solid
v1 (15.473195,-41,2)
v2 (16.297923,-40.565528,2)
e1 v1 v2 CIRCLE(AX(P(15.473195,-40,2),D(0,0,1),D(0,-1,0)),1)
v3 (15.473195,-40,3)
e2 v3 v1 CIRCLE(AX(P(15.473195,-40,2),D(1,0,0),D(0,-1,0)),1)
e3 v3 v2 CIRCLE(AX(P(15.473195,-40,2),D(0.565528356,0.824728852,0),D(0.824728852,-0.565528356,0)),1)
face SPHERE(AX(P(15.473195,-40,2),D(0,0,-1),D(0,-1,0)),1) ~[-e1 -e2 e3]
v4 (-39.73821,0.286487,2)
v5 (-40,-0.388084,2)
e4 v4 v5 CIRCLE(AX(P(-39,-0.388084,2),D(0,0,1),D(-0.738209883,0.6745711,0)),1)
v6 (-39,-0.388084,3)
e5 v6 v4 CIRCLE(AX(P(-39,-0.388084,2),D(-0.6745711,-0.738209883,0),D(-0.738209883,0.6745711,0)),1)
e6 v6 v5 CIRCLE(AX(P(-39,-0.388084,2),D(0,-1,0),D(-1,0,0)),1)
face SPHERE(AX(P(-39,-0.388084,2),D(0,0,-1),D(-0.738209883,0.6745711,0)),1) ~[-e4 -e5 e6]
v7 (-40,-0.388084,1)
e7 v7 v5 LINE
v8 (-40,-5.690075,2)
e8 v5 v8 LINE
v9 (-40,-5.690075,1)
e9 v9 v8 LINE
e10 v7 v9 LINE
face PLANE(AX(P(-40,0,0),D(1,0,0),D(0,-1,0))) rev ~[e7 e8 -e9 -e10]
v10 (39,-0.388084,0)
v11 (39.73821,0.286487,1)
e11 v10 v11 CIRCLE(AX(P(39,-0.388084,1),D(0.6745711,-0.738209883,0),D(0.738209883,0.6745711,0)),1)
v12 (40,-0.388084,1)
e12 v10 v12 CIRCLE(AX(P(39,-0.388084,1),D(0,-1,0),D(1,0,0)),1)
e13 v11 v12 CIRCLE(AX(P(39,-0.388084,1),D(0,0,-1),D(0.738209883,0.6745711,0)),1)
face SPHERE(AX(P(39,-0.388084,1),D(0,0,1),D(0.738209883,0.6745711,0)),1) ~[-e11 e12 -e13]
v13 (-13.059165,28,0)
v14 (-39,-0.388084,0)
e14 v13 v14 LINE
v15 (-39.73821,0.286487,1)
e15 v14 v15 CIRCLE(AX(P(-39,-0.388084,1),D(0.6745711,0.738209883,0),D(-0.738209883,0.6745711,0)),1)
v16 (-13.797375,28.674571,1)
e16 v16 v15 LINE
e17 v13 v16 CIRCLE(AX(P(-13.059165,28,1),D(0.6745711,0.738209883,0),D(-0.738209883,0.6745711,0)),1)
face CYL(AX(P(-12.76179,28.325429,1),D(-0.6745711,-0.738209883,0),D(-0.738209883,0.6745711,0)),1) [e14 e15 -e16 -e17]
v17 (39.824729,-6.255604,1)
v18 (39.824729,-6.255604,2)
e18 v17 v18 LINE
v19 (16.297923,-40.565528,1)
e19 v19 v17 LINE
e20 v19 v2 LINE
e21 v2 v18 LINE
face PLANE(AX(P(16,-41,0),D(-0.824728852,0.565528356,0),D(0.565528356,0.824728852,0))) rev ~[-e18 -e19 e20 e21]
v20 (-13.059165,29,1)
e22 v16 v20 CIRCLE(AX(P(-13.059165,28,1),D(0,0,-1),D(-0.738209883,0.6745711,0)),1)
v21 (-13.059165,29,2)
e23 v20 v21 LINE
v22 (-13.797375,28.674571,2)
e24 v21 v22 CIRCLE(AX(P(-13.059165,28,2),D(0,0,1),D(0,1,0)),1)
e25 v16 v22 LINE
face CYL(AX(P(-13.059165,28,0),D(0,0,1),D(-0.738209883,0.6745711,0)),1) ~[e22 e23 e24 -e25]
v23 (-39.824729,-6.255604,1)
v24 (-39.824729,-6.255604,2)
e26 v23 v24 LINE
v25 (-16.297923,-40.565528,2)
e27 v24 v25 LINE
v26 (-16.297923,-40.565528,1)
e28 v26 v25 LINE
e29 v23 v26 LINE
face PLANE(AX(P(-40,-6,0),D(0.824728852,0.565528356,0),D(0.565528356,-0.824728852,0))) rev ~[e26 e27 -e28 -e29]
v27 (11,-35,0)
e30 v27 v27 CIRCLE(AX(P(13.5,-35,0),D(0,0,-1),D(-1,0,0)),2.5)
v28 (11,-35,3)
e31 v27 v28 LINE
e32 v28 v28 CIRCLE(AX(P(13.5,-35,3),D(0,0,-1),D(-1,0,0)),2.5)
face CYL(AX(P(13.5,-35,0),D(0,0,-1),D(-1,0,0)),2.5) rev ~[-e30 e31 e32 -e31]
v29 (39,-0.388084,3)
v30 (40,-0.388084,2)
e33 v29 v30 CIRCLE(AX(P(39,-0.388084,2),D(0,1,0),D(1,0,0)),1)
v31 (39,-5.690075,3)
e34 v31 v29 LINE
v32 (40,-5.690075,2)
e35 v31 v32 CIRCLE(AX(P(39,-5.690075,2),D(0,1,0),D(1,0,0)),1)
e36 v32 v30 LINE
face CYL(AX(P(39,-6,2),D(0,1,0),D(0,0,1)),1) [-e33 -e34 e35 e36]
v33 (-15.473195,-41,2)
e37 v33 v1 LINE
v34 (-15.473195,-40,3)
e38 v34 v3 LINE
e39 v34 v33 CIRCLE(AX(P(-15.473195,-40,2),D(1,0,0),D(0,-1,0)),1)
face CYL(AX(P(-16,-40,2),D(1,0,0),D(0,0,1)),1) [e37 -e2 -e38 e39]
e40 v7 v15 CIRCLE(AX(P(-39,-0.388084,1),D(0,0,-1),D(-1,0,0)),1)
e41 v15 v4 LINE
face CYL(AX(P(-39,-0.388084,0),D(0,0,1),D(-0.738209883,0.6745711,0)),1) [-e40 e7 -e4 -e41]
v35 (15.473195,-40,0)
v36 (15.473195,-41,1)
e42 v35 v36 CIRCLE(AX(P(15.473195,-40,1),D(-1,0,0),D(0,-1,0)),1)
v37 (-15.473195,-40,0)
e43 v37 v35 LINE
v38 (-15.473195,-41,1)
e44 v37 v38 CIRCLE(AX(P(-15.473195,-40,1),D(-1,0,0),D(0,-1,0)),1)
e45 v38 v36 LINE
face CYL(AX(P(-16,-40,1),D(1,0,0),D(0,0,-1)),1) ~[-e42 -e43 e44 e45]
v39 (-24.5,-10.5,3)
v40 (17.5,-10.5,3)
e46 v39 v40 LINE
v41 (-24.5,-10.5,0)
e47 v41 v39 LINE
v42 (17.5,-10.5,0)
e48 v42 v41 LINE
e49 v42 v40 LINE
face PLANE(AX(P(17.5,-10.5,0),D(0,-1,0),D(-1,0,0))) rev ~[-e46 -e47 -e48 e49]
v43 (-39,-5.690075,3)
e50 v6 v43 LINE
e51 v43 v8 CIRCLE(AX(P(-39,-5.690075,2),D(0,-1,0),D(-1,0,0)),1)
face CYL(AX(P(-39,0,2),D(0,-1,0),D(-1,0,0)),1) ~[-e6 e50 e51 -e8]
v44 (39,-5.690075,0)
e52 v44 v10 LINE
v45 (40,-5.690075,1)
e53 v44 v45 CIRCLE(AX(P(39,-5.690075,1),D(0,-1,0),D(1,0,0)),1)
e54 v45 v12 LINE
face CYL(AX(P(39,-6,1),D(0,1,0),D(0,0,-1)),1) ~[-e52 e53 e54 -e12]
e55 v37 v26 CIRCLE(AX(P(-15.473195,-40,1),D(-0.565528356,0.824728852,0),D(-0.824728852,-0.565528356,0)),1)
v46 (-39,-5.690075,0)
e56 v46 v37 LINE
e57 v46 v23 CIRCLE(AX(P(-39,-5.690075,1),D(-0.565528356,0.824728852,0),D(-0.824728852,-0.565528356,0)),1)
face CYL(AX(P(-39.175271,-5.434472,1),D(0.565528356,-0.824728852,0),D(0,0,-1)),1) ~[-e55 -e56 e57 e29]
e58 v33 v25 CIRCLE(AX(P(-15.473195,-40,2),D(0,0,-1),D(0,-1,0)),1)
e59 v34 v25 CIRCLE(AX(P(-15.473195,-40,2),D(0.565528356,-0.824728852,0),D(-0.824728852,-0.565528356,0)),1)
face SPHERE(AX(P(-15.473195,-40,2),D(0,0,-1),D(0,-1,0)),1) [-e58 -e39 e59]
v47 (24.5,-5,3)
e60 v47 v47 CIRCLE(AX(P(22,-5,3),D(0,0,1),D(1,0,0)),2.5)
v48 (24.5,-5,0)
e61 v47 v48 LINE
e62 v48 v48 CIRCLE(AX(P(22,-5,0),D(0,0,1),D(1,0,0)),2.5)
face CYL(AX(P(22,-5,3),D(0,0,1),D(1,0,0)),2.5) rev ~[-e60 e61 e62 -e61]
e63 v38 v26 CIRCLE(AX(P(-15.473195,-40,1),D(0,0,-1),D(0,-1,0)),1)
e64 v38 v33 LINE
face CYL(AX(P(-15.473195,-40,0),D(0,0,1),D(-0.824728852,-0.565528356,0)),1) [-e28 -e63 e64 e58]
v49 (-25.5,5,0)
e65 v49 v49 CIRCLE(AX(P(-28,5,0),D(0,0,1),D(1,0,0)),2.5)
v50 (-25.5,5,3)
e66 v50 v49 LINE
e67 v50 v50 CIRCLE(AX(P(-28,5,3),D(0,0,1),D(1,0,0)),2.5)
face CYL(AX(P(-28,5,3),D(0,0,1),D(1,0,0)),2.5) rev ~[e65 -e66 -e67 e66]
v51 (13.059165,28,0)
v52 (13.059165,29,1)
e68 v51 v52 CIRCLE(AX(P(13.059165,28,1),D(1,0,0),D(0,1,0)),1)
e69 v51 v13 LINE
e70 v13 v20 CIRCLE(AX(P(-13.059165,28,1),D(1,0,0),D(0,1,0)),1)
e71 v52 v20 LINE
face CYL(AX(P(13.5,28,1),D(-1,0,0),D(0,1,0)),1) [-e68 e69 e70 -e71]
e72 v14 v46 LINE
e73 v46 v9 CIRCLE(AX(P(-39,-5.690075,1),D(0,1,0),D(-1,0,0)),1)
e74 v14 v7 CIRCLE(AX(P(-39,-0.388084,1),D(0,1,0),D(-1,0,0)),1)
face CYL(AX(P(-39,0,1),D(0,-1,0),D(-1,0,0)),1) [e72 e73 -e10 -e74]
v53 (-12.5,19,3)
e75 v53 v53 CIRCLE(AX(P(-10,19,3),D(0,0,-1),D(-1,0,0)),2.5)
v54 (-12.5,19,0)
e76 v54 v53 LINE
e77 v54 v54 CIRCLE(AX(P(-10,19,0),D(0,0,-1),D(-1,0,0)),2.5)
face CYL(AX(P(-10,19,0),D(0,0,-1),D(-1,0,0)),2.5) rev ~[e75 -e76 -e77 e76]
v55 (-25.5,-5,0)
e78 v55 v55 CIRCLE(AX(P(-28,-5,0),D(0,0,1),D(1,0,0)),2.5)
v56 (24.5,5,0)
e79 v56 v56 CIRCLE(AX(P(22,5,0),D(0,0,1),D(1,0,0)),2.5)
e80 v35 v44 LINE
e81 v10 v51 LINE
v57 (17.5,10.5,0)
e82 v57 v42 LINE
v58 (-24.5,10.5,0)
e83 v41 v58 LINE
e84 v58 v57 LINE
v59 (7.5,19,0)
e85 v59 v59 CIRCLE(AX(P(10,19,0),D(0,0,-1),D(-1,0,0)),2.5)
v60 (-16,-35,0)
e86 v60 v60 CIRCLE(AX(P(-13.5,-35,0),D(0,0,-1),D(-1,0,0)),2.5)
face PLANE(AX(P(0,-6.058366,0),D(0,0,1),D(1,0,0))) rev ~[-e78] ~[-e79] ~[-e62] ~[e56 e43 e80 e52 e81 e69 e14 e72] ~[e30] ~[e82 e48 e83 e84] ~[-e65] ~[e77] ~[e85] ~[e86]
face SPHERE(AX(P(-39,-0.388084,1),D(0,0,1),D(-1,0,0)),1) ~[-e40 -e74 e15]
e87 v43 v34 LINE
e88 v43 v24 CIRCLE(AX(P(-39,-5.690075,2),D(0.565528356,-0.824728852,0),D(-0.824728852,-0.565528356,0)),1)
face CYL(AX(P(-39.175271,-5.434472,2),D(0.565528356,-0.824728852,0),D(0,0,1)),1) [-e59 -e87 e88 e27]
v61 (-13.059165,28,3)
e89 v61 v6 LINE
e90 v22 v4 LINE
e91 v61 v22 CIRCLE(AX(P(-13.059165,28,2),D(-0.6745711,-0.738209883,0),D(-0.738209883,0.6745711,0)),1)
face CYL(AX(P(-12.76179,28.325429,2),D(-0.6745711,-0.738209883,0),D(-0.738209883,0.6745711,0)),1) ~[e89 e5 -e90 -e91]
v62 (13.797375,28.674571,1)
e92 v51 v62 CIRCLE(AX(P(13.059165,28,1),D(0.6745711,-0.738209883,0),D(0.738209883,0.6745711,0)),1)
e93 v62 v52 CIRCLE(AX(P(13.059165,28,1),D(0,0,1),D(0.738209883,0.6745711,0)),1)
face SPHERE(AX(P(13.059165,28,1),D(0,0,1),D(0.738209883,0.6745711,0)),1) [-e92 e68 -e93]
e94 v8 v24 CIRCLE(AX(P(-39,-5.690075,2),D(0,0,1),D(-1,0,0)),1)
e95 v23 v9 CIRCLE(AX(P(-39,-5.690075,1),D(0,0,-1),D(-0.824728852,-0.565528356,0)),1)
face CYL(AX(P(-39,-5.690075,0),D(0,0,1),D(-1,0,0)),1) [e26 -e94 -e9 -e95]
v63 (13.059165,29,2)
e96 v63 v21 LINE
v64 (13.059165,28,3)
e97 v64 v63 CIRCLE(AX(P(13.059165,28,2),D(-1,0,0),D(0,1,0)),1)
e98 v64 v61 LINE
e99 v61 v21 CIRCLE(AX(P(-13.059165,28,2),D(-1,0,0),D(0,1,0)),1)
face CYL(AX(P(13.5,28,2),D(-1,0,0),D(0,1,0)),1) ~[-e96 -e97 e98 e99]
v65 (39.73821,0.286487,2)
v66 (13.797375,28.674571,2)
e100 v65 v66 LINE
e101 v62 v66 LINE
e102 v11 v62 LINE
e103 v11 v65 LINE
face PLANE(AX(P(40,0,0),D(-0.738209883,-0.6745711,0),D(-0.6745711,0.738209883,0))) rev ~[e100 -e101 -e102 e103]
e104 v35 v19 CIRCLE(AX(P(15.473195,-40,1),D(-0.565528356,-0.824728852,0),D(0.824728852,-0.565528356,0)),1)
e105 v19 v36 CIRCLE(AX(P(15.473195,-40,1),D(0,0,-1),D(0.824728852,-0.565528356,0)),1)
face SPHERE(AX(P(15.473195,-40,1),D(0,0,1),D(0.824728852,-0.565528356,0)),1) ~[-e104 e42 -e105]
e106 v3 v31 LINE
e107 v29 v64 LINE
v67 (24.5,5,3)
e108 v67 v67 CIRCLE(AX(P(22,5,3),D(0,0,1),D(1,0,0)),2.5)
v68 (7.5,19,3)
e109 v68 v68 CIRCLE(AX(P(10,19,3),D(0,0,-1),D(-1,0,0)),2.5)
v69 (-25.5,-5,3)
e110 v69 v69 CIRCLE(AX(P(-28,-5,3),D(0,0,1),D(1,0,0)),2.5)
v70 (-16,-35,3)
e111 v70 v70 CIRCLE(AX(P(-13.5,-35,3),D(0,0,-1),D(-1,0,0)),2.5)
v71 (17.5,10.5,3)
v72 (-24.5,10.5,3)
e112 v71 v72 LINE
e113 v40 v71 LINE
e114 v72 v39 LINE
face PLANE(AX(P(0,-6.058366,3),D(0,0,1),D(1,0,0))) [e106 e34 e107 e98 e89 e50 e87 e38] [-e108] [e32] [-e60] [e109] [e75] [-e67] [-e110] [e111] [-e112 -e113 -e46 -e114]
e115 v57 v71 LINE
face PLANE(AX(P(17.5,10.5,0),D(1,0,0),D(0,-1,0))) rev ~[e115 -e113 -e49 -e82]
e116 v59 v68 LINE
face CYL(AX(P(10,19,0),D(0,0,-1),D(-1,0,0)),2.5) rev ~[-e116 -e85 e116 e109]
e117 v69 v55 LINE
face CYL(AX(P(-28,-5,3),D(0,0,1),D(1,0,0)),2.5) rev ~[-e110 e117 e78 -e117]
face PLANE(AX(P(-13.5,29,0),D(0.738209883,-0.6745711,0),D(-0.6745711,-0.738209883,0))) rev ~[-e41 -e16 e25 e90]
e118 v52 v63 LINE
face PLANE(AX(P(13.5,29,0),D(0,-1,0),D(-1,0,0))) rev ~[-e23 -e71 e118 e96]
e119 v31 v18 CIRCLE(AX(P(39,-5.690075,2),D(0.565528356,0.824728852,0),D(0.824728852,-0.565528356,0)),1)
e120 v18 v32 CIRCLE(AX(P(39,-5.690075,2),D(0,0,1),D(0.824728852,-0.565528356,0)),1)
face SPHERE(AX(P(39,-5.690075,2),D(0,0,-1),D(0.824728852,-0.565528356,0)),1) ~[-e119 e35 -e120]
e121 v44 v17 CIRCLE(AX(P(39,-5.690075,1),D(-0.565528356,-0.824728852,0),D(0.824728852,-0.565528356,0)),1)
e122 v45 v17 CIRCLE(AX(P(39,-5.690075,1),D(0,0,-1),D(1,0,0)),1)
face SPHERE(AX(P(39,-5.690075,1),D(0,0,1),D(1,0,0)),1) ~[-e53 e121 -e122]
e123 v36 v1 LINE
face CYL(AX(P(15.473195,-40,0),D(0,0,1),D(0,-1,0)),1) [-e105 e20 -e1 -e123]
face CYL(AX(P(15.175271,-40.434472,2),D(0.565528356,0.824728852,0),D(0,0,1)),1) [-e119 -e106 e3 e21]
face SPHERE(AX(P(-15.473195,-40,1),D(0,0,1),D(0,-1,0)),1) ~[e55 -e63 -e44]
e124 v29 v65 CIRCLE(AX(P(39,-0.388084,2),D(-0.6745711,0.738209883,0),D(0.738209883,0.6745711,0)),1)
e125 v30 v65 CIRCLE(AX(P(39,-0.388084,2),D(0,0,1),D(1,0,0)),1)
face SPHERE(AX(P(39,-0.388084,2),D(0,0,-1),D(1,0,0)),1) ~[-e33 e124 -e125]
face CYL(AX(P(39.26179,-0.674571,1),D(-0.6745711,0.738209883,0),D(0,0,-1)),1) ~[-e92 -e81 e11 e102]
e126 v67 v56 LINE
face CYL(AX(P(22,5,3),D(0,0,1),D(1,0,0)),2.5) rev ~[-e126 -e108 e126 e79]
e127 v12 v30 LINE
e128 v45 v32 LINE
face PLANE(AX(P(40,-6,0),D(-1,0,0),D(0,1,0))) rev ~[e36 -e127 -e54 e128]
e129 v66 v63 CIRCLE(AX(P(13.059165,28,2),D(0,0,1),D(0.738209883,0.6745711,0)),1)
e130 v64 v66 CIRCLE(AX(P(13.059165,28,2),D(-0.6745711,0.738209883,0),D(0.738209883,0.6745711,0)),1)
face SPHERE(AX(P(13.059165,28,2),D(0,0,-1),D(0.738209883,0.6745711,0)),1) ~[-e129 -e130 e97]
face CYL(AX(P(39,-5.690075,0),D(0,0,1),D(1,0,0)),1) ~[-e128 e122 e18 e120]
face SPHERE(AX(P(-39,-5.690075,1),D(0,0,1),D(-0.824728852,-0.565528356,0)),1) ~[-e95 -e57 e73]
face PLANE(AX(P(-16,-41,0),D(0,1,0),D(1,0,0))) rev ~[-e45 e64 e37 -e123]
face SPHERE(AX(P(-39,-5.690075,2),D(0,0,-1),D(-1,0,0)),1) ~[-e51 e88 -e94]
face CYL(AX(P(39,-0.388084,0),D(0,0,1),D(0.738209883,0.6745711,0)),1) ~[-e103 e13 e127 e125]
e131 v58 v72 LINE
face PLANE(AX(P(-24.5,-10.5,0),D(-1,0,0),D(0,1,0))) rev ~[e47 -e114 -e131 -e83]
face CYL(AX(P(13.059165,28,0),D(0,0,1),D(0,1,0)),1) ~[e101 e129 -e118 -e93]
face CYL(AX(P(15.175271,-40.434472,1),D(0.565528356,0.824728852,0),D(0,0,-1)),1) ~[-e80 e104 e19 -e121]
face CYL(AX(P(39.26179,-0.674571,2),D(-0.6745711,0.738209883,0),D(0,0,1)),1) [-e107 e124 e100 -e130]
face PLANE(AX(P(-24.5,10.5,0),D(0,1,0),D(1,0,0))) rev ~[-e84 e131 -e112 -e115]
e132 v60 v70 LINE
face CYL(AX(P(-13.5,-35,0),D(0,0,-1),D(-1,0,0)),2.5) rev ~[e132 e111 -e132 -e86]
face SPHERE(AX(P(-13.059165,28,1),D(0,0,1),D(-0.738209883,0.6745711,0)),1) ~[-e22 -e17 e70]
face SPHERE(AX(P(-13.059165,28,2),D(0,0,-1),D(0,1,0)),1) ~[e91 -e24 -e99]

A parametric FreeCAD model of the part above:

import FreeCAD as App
import Part
import Sketcher
Q = App.Units.Quantity


def edges_at(feature, points):
    """Names of the edges that pass closest to the given points."""
    edges = feature.Shape.Edges
    near = lambda p: min(range(len(edges)), key=lambda i: edges[i].distToShape(Part.Vertex(*p))[0])
    return sorted({f"Edge{near(p) + 1}" for p in points})

doc = App.newDocument("Part")
body = doc.addObject("PartDesign::Body", "Body")

# Sketch on XY plane
sketch1 = doc.addObject("Sketcher::SketchObject", "Sketch")
body.addObject(sketch1)
sketch1.AttachmentSupport = (doc.XY_Plane, [""])
sketch1.MapMode = "FlatFace"
sketch1.addGeometry([
    Part.LineSegment(App.Vector(-14, 29, 0), App.Vector(-40, 0, 0)),  # 0
    Part.LineSegment(App.Vector(-40, 0, 0), App.Vector(-40, -6, 0)),  # 1
    Part.LineSegment(App.Vector(-40, -6, 0), App.Vector(-16, -41, 0)),  # 2
    Part.LineSegment(App.Vector(-16, -41, 0), App.Vector(16, -41, 0)),  # 3
    Part.LineSegment(App.Vector(16, -41, 0), App.Vector(40, -6, 0)),  # 4
    Part.LineSegment(App.Vector(40, -6, 0), App.Vector(40, 0, 0)),  # 5
    Part.LineSegment(App.Vector(40, 0, 0), App.Vector(14, 29, 0)),  # 6
    Part.LineSegment(App.Vector(14, 29, 0), App.Vector(-14, 29, 0)),  # 7
], False)
sketch1.addConstraint([
    Sketcher.Constraint("Coincident", 0, 2, 1, 1),
    Sketcher.Constraint("Coincident", 1, 2, 2, 1),
    Sketcher.Constraint("Coincident", 2, 2, 3, 1),
    Sketcher.Constraint("Coincident", 3, 2, 4, 1),
    Sketcher.Constraint("Coincident", 4, 2, 5, 1),
    Sketcher.Constraint("Coincident", 5, 2, 6, 1),
    Sketcher.Constraint("Coincident", 6, 2, 7, 1),
    Sketcher.Constraint("Coincident", 7, 2, 0, 1),
    Sketcher.Constraint("Vertical", 1),
    Sketcher.Constraint("Horizontal", 3),
    Sketcher.Constraint("Vertical", 5),
    Sketcher.Constraint("Horizontal", 7),
    Sketcher.Constraint("Symmetric", 0, 2, 5, 2, -1, 1),
    Sketcher.Constraint("PointOnObject", 0, 2, -1),
    Sketcher.Constraint("Horizontal", 1, 2, 4, 2),
    Sketcher.Constraint("Equal", 2, 4),
    Sketcher.Constraint("Equal", 0, 6),
    Sketcher.Constraint("DistanceX", 3, 1, 3, 2, Q("32 mm")),
    Sketcher.Constraint("DistanceX", 7, 2, 7, 1, Q("27 mm")),
    Sketcher.Constraint("DistanceY", 1, 2, 1, 1, Q("6 mm")),
    Sketcher.Constraint("DistanceX", 0, 2, -1, 1, Q("40 mm")),
    Sketcher.Constraint("DistanceY", 2, 2, -1, 1, Q("41 mm")),
    Sketcher.Constraint("DistanceY", -1, 1, 6, 2, Q("29 mm")),
])
pad1 = doc.addObject("PartDesign::Pad", "Pad")
body.addObject(pad1)
pad1.Profile = sketch1
pad1.Length = 3

# Sketch on XY plane
sketch2 = doc.addObject("Sketcher::SketchObject", "Sketch001")
body.addObject(sketch2)
sketch2.AttachmentSupport = (doc.XY_Plane, [""])
sketch2.MapMode = "FlatFace"
sketch2.addGeometry([
    Part.Circle(App.Vector(10, 19, 0), App.Vector(0, 0, 1), 2.5),
    Part.Circle(App.Vector(-10, 19, 0), App.Vector(0, 0, 1), 2.5),
    Part.Circle(App.Vector(13.5, -35, 0), App.Vector(0, 0, 1), 2.5),
    Part.Circle(App.Vector(-13.5, -35, 0), App.Vector(0, 0, 1), 2.5),
], False)
sketch2.addConstraint([
    Sketcher.Constraint("Equal", 0, 1),
    Sketcher.Constraint("Equal", 1, 2),
    Sketcher.Constraint("Equal", 2, 3),
    Sketcher.Constraint("Symmetric", 0, 3, 1, 3, -2),
    Sketcher.Constraint("Symmetric", 2, 3, 3, 3, -2),
    Sketcher.Constraint("Diameter", 0, Q("5 mm")),
    Sketcher.Constraint("DistanceX", -1, 1, 0, 3, Q("10 mm")),
    Sketcher.Constraint("DistanceY", -1, 1, 0, 3, Q("19 mm")),
    Sketcher.Constraint("DistanceY", 2, 3, -1, 1, Q("35 mm")),
    Sketcher.Constraint("DistanceX", 3, 3, 2, 3, Q("27 mm")),
])
pocket1 = doc.addObject("PartDesign::Pocket", "Pocket")
body.addObject(pocket1)
pocket1.Profile = sketch2
pocket1.Length = 10
pocket1.Reversed = True

# Sketch on XY plane
sketch3 = doc.addObject("Sketcher::SketchObject", "Sketch002")
body.addObject(sketch3)
sketch3.AttachmentSupport = (doc.XY_Plane, [""])
sketch3.MapMode = "FlatFace"
sketch3.addGeometry([
    Part.LineSegment(App.Vector(-24, 10, 0), App.Vector(18, 10, 0)),
    Part.LineSegment(App.Vector(18, 10, 0), App.Vector(18, -10, 0)),
    Part.LineSegment(App.Vector(18, -10, 0), App.Vector(-24, -10, 0)),
    Part.LineSegment(App.Vector(-24, -10, 0), App.Vector(-24, 10, 0)),
], False)
sketch3.addConstraint([
    Sketcher.Constraint("Coincident", 0, 2, 1, 1),
    Sketcher.Constraint("Coincident", 1, 2, 2, 1),
    Sketcher.Constraint("Coincident", 2, 2, 3, 1),
    Sketcher.Constraint("Coincident", 3, 2, 0, 1),
    Sketcher.Constraint("Horizontal", 0),
    Sketcher.Constraint("Vertical", 1),
    Sketcher.Constraint("Horizontal", 2),
    Sketcher.Constraint("Vertical", 3),
    Sketcher.Constraint("DistanceX", 0, 1, 0, 2, Q("42 mm")),
    Sketcher.Constraint("DistanceY", 1, 2, 1, 1, Q("21 mm")),
    Sketcher.Constraint("DistanceX", -1, 1, 0, 2, Q("17.5 mm")),
    Sketcher.Constraint("DistanceY", -1, 1, 0, 2, Q("10.5 mm")),
])
pocket2 = doc.addObject("PartDesign::Pocket", "Pocket001")
body.addObject(pocket2)
pocket2.Profile = sketch3
pocket2.Length = 10
pocket2.Reversed = True

# Sketch on XY plane
sketch4 = doc.addObject("Sketcher::SketchObject", "Sketch003")
body.addObject(sketch4)
sketch4.AttachmentSupport = (doc.XY_Plane, [""])
sketch4.MapMode = "FlatFace"
sketch4.AttachmentOffset = App.Placement(App.Vector(0, 0, 3), App.Rotation())
sketch4.addGeometry([
    Part.Circle(App.Vector(-28, -5, 0), App.Vector(0, 0, 1), 2.5),
    Part.Circle(App.Vector(-28, 5, 0), App.Vector(0, 0, 1), 2.5),
    Part.Circle(App.Vector(22, -5, 0), App.Vector(0, 0, 1), 2.5),
    Part.Circle(App.Vector(22, 5, 0), App.Vector(0, 0, 1), 2.5),
], False)
sketch4.addConstraint([
    Sketcher.Constraint("Equal", 0, 1),
    Sketcher.Constraint("Equal", 1, 2),
    Sketcher.Constraint("Equal", 2, 3),
    Sketcher.Constraint("Symmetric", 0, 3, 1, 3, -1),
    Sketcher.Constraint("Symmetric", 2, 3, 3, 3, -1),
    Sketcher.Constraint("Horizontal", 0, 3, 2, 3),
    Sketcher.Constraint("Diameter", 0, Q("5 mm")),
    Sketcher.Constraint("DistanceX", 0, 3, -1, 1, Q("28 mm")),
    Sketcher.Constraint("DistanceY", 0, 3, -1, 1, Q("5 mm")),
    Sketcher.Constraint("DistanceX", -1, 1, 2, 3, Q("22 mm")),
])
pocket3 = doc.addObject("PartDesign::Pocket", "Pocket002")
body.addObject(pocket3)
pocket3.Profile = sketch4
pocket3.Length = 10
doc.recompute()

fillet = doc.addObject("PartDesign::Fillet", "Fillet")
body.addObject(fillet)
fillet.Base = (pocket3, edges_at(pocket3, [
    (-40, -3, 3),
    (-26.75, 14.5, 0),
    (0, 29, 0),
    (-28, -23.5, 3),
    (13.5, 29, 1.5),
    (40, 0, 1.5),
    (40, -6, 1.5),
    (16, -41, 1.5),
    (-16, -41, 1.5),
    (-40, -6, 1.5),
    (-40, 0, 1.5),
    (-13.5, 29, 1.5),
    (0, -41, 3),
    (28, -23.5, 3),
    (40, -3, 3),
    (26.75, 14.5, 3),
    (0, 29, 3),
    (-26.75, 14.5, 3),
    (26.75, 14.5, 0),
    (40, -3, 0),
    (28, -23.5, 0),
    (0, -41, 0),
    (-28, -23.5, 0),
    (-40, -3, 0),
]))
fillet.Radius = 1

doc.recompute()
